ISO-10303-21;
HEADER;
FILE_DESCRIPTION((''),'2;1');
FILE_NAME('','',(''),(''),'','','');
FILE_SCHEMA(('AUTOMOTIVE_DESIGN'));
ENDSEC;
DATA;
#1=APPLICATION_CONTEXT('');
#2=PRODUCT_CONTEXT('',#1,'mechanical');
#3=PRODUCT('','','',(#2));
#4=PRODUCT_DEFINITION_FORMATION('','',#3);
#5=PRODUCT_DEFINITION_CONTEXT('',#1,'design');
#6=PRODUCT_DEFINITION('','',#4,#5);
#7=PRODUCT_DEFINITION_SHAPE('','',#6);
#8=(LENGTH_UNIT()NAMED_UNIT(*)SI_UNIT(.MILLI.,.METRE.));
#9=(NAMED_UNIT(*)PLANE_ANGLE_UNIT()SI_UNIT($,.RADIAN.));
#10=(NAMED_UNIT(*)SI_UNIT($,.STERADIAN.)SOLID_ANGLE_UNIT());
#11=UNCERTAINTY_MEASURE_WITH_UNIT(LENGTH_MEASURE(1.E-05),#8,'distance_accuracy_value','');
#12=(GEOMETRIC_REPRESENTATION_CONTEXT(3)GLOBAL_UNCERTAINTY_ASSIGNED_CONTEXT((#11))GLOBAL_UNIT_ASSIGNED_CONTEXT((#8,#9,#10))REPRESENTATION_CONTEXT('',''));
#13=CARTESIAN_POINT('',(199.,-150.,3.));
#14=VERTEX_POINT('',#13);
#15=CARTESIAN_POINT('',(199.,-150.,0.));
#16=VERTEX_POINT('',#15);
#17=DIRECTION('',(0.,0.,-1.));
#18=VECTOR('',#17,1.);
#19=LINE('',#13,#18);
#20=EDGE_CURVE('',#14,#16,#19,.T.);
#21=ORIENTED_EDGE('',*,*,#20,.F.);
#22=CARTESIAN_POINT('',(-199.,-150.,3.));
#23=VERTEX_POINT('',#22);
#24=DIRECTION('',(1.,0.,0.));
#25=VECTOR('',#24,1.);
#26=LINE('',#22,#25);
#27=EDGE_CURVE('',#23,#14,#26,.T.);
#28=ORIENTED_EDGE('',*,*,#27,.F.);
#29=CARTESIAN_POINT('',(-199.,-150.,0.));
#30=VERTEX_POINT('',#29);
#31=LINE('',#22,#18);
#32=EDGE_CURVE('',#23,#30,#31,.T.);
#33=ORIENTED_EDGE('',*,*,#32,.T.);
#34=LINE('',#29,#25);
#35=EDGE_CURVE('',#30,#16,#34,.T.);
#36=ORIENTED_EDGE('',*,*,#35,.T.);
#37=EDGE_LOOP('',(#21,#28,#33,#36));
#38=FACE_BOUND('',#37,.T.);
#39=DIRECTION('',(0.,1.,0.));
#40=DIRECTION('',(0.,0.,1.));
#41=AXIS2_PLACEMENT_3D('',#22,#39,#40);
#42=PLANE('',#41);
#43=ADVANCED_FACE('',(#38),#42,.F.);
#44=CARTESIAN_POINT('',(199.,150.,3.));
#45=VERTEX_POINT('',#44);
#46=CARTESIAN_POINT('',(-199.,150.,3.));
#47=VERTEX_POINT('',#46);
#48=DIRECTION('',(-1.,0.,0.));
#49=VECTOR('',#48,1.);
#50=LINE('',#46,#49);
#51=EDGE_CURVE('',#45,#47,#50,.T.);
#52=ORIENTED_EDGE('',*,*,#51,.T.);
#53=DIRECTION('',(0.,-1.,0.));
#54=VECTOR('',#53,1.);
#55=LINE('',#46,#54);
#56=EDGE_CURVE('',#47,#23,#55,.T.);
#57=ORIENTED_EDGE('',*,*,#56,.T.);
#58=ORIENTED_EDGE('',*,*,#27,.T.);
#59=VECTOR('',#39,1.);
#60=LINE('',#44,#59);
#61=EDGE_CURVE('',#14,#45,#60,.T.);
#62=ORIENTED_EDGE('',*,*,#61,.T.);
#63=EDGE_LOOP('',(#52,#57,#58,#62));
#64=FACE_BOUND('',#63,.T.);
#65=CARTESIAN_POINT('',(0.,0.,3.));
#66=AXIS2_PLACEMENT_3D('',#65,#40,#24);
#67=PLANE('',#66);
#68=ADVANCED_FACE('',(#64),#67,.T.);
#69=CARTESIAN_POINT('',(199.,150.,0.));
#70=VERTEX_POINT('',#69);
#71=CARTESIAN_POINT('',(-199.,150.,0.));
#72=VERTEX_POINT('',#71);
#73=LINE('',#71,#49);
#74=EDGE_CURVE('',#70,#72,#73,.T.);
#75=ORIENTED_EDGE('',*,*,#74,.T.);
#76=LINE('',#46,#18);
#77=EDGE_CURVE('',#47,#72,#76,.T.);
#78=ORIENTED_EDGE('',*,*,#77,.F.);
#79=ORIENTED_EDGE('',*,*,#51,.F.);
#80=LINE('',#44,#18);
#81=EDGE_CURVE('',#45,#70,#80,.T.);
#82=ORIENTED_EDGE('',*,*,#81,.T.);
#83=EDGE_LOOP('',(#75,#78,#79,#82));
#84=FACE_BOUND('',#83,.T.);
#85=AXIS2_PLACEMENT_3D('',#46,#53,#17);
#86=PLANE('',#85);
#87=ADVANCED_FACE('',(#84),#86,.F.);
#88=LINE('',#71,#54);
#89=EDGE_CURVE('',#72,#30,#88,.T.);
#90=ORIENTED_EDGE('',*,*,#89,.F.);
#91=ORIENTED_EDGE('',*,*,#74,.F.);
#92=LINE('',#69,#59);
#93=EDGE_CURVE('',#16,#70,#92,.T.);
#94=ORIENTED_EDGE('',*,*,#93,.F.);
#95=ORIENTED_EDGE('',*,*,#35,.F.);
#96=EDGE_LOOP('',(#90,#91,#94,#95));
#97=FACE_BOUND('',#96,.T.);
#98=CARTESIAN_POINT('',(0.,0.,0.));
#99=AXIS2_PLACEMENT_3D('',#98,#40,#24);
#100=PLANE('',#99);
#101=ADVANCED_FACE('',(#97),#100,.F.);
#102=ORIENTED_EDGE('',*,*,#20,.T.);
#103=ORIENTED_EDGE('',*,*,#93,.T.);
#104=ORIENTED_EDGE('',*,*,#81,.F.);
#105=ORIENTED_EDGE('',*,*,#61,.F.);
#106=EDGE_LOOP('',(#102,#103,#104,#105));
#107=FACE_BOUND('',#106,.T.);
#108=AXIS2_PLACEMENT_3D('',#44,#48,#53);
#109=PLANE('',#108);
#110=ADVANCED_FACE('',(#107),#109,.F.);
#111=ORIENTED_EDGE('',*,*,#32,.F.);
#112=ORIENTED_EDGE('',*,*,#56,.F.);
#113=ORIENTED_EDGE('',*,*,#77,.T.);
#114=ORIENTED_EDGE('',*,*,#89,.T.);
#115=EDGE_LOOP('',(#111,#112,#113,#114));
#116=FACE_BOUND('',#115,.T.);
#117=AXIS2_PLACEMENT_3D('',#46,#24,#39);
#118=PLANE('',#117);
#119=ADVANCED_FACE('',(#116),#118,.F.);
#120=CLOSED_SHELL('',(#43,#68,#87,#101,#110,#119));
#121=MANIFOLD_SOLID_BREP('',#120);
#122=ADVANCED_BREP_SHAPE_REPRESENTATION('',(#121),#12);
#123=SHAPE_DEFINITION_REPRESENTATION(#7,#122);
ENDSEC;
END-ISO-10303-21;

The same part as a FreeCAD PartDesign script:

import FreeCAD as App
import Part
import Sketcher
from FreeCAD import Vector

doc = App.newDocument("Part")
body = doc.addObject("PartDesign::Body", "Body")

# Sketch on XY plane
sketch1 = doc.addObject("Sketcher::SketchObject", "Sketch")
body.addObject(sketch1)
sketch1.AttachmentSupport = (doc.XY_Plane, [""])
sketch1.MapMode = "FlatFace"
sketch1.addGeometry(Part.LineSegment(Vector(-199, 150, 0), Vector(-199, -150, 0)), False)
sketch1.addGeometry(Part.LineSegment(Vector(-199, -150, 0), Vector(199, -150, 0)), False)
sketch1.addGeometry(Part.LineSegment(Vector(199, -150, 0), Vector(199, 150, 0)), False)
sketch1.addGeometry(Part.LineSegment(Vector(199, 150, 0), Vector(-199, 150, 0)), False)
sketch1.addConstraint(Sketcher.Constraint("Coincident", 0, 2, 1, 1))
sketch1.addConstraint(Sketcher.Constraint("Coincident", 1, 2, 2, 1))
sketch1.addConstraint(Sketcher.Constraint("Coincident", 2, 2, 3, 1))
sketch1.addConstraint(Sketcher.Constraint("Coincident", 3, 2, 0, 1))
sketch1.addConstraint(Sketcher.Constraint("Vertical", 0))
sketch1.addConstraint(Sketcher.Constraint("Horizontal", 1))
sketch1.addConstraint(Sketcher.Constraint("Vertical", 2))
sketch1.addConstraint(Sketcher.Constraint("Horizontal", 3))
sketch1.addConstraint(Sketcher.Constraint("Symmetric", 0, 2, 2, 2, -1, 1))
sketch1.addConstraint(Sketcher.Constraint("DistanceX", 1, 1, 1, 2, 398.0))
sketch1.addConstraint(Sketcher.Constraint("DistanceY", 0, 2, 0, 1, 300.0))
pad1 = doc.addObject("PartDesign::Pad", "Pad")
body.addObject(pad1)
pad1.Profile = sketch1
pad1.Length = 3

doc.recompute()
